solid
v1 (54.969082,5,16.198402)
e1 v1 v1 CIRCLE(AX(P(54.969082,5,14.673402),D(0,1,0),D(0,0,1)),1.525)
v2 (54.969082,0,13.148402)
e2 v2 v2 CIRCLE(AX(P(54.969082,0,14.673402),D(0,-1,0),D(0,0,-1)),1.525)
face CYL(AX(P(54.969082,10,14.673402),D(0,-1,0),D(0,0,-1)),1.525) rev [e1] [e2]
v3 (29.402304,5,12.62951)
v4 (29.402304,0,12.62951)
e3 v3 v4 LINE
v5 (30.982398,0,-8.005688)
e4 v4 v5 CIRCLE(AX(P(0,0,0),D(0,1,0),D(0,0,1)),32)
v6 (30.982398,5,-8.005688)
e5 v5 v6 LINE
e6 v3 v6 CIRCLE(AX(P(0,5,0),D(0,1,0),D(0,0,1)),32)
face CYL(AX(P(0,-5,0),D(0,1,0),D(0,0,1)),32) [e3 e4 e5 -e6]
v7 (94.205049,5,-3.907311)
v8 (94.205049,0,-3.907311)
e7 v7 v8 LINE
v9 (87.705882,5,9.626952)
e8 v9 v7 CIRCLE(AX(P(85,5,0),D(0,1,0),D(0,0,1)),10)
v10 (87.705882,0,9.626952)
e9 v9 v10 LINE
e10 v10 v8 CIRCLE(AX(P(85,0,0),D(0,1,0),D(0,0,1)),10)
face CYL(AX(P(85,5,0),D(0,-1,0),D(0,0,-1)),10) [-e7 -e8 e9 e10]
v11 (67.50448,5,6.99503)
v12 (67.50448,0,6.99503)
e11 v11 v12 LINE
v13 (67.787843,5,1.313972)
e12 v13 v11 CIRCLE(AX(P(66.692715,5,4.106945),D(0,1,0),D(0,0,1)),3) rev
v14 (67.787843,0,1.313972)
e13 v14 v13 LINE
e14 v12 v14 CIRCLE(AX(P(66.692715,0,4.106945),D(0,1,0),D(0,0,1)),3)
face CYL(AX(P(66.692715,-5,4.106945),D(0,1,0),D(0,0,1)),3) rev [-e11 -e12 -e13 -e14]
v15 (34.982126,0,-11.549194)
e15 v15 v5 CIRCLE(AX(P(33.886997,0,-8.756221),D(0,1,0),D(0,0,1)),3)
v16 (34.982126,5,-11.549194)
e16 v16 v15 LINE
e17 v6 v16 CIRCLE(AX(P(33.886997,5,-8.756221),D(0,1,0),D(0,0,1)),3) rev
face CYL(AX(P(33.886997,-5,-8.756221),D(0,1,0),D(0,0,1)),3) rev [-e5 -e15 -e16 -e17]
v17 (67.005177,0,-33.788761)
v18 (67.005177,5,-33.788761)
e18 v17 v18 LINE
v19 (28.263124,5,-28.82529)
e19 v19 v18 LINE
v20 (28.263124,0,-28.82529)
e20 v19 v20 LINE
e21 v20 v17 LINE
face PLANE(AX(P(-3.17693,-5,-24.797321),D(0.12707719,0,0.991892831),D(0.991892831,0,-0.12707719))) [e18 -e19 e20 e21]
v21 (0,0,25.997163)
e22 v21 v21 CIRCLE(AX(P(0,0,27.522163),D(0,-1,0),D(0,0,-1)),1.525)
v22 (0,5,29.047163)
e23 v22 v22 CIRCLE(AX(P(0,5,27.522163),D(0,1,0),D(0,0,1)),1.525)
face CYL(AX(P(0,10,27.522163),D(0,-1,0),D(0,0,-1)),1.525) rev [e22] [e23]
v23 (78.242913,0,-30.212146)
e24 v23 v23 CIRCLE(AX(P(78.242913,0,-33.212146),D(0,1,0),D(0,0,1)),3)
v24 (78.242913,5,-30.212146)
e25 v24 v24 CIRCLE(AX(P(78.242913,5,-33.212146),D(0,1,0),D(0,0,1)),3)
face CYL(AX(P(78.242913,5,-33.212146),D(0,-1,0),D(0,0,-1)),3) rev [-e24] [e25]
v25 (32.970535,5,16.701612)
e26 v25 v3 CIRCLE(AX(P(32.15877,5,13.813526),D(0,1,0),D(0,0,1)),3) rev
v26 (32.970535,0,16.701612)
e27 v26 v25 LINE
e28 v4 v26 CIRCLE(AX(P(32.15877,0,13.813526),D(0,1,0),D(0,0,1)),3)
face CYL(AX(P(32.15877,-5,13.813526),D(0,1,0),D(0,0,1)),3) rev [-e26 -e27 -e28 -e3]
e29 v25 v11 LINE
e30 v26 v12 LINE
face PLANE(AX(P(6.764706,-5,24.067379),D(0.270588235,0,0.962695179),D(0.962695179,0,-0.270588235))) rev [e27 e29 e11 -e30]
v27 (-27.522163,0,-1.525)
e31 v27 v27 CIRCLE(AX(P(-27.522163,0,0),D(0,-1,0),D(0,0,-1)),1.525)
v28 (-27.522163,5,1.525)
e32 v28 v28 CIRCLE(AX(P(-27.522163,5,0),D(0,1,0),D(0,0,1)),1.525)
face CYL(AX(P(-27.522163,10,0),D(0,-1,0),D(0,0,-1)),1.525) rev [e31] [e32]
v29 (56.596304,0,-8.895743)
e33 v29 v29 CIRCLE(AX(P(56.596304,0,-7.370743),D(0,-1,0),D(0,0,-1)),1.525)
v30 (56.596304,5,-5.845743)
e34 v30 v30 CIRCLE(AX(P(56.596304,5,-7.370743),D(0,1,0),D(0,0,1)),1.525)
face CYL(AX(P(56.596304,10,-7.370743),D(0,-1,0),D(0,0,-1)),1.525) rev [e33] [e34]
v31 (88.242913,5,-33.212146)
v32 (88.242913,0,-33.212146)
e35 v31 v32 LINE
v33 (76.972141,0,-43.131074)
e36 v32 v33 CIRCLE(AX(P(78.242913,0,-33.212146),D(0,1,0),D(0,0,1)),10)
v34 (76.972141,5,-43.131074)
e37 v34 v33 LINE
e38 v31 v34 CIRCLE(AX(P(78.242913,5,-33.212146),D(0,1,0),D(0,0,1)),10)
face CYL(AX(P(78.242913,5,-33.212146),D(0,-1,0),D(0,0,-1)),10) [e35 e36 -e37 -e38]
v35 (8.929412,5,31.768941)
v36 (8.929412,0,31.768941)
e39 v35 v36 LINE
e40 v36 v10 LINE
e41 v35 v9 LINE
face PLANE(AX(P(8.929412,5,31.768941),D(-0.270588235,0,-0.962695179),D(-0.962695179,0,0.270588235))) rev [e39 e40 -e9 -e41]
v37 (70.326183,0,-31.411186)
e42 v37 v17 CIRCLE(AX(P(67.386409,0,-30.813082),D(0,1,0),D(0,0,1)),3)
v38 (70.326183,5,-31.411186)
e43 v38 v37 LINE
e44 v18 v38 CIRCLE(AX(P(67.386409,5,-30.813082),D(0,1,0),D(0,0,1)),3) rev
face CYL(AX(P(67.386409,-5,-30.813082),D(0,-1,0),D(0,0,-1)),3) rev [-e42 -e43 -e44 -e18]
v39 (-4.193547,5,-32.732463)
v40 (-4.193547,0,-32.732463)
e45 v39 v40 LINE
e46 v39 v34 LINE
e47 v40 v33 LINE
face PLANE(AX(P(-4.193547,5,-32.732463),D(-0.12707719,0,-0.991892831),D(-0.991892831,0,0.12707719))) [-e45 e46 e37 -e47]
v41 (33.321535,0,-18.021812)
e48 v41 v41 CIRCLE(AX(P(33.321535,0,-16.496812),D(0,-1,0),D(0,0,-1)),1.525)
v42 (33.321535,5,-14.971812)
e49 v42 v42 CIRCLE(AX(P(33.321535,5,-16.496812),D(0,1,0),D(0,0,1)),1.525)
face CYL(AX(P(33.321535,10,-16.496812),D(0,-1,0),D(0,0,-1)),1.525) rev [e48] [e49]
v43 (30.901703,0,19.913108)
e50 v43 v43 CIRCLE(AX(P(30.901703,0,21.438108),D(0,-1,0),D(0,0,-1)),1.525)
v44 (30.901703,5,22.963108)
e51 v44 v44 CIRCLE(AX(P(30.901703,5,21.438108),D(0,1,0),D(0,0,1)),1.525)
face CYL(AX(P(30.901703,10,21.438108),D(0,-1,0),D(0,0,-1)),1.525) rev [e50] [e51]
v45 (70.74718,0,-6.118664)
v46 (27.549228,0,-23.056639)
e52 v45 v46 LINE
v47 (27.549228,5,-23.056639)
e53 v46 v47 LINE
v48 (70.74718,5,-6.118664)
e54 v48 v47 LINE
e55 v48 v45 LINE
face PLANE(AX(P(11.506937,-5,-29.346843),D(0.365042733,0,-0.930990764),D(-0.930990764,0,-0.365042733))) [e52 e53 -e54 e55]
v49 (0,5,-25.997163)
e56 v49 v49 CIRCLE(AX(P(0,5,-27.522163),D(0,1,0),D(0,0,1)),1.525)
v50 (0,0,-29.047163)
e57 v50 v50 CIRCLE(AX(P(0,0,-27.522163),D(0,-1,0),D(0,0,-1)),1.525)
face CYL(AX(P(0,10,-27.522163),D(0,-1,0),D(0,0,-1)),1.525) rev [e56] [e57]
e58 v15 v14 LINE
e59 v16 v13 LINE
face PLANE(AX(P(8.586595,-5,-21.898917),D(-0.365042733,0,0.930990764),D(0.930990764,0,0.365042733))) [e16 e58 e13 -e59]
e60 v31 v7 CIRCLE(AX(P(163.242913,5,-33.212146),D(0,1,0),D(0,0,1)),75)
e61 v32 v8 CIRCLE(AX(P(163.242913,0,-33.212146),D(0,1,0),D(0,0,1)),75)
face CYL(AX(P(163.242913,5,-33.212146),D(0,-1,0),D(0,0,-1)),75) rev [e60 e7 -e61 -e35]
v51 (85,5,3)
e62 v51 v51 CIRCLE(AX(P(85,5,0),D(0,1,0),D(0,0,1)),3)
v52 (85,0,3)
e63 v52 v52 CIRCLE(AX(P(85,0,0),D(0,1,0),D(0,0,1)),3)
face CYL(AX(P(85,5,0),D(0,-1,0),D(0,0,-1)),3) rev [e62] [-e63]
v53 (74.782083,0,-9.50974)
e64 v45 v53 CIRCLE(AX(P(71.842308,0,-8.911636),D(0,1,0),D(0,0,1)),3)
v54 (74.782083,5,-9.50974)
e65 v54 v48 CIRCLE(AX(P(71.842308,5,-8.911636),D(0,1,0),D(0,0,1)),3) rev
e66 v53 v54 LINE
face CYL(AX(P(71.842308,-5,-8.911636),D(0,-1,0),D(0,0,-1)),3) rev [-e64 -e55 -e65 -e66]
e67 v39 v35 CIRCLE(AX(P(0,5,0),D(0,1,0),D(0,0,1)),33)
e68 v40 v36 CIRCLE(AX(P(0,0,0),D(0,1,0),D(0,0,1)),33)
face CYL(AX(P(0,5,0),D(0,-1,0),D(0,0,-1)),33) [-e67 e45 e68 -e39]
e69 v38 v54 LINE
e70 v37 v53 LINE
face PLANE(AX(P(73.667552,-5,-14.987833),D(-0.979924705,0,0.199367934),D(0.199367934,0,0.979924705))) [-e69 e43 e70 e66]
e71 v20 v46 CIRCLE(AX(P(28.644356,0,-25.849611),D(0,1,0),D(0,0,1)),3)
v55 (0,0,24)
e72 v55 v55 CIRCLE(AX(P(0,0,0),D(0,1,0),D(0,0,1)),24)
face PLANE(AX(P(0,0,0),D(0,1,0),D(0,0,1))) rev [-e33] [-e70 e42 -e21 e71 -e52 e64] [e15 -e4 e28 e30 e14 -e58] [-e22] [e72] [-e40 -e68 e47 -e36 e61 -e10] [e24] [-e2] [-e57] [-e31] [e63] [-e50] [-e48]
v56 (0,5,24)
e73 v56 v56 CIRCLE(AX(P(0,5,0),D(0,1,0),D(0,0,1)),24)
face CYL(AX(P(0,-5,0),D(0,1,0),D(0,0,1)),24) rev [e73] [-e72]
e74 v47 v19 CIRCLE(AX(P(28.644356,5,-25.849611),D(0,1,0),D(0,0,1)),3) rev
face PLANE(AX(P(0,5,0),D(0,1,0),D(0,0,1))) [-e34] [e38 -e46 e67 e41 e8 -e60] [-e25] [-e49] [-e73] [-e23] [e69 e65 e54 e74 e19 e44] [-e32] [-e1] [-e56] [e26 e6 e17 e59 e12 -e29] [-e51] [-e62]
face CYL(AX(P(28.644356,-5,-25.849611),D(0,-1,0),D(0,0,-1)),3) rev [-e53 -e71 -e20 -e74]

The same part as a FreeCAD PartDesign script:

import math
import FreeCAD as App
import Part
import Sketcher
from FreeCAD import Vector
Q = App.Units.Quantity


def edges_at(feature, points):
    """Names of the edges that pass closest to the given points."""
    edges = feature.Shape.Edges
    near = lambda p: min(range(len(edges)), key=lambda i: edges[i].distToShape(Part.Vertex(*p))[0])
    return sorted({f"Edge{near(p) + 1}" for p in points})


def add_polygon(sketch, points):
    """Adds a closed chain of lines whose ends are joined by coincident constraints."""
    first, n = sketch.GeometryCount, len(points)
    for a, b in zip(points, points[1:] + points[:1]):
        sketch.addGeometry(Part.LineSegment(App.Vector(*a, 0), App.Vector(*b, 0)), False)
    for i in range(n):
        sketch.addConstraint(Sketcher.Constraint("Coincident", first + i, 2, first + (i + 1) % n, 1))

doc = App.newDocument("Part")
body = doc.addObject("PartDesign::Body", "Body")

sketch1 = doc.addObject("Sketcher::SketchObject", "Sketch")
body.addObject(sketch1)
sketch1.AttachmentSupport = (doc.XZ_Plane, [""])
sketch1.MapMode = "FlatFace"
sketch1.addGeometry(Part.LineSegment(Vector(76.972141, -43.131074, 0), Vector(-4.193547, -32.732463, 0)), False)
sketch1.addGeometry(Part.ArcOfCircle(Part.Circle(Vector(0, 0, 0), Vector(0, 0, 1), 33), math.radians(74.300727), math.radians(262.699273)), False)
sketch1.addGeometry(Part.LineSegment(Vector(8.929412, 31.768941, 0), Vector(87.705882, 9.626952, 0)), False)
sketch1.addGeometry(Part.ArcOfCircle(Part.Circle(Vector(85, 0, 0), Vector(0, 0, 1), 10), math.radians(-22.999994), math.radians(74.300727)), False)
sketch1.addGeometry(Part.ArcOfCircle(Part.Circle(Vector(163.242913, -33.212146, 0), Vector(0, 0, 1), 75), math.radians(156.999999), math.radians(180)), False)
sketch1.addGeometry(Part.ArcOfCircle(Part.Circle(Vector(78.242913, -33.212146, 0), Vector(0, 0, 1), 10), math.radians(-97.300727), math.radians(0)), False)
sketch1.addGeometry(Part.Circle(Vector(-8.75, 15.155445, 0), Vector(0, 0, 1), 2.025), False)
sketch1.addGeometry(Part.Circle(Vector(0, 17.5, 0), Vector(0, 0, 1), 2.025), False)
sketch1.addGeometry(Part.Circle(Vector(-15.155445, 8.75, 0), Vector(0, 0, 1), 2.025), False)
sketch1.addGeometry(Part.Circle(Vector(8.75, 15.155445, 0), Vector(0, 0, 1), 2.025), False)
sketch1.addGeometry(Part.Circle(Vector(15.155445, 8.75, 0), Vector(0, 0, 1), 2.025), False)
sketch1.addGeometry(Part.Circle(Vector(-17.5, 0, 0), Vector(0, 0, 1), 2.025), False)
sketch1.addGeometry(Part.Circle(Vector(0, 0, 0), Vector(0, 0, 1), 13.1), False)
sketch1.addGeometry(Part.Circle(Vector(17.5, 0, 0), Vector(0, 0, 1), 2.025), False)
sketch1.addGeometry(Part.Circle(Vector(85, 0, 0), Vector(0, 0, 1), 3), False)
sketch1.addGeometry(Part.Circle(Vector(-15.155445, -8.75, 0), Vector(0, 0, 1), 2.025), False)
sketch1.addGeometry(Part.Circle(Vector(-8.75, -15.155445, 0), Vector(0, 0, 1), 2.025), False)
sketch1.addGeometry(Part.Circle(Vector(0, -17.5, 0), Vector(0, 0, 1), 2.025), False)
sketch1.addGeometry(Part.Circle(Vector(15.155445, -8.75, 0), Vector(0, 0, 1), 2.025), False)
sketch1.addGeometry(Part.Circle(Vector(8.75, -15.155445, 0), Vector(0, 0, 1), 2.025), False)
sketch1.addGeometry(Part.Circle(Vector(78.242913, -33.212146, 0), Vector(0, 0, 1), 3), False)
sketch1.addConstraint(Sketcher.Constraint("Tangent", 0, 2, 1, 2))
sketch1.addConstraint(Sketcher.Constraint("Tangent", 1, 1, 2, 1))
sketch1.addConstraint(Sketcher.Constraint("Tangent", 2, 2, 3, 2))
sketch1.addConstraint(Sketcher.Constraint("Tangent", 3, 1, 4, 1))
sketch1.addConstraint(Sketcher.Constraint("Tangent", 4, 2, 5, 2))
sketch1.addConstraint(Sketcher.Constraint("Tangent", 5, 1, 0, 1))
sketch1.addConstraint(Sketcher.Constraint("Coincident", 1, 3, -1, 1))
sketch1.addConstraint(Sketcher.Constraint("Coincident", 12, 3, -1, 1))
sketch1.addConstraint(Sketcher.Constraint("Coincident", 14, 3, 3, 3))
sketch1.addConstraint(Sketcher.Constraint("Coincident", 20, 3, 5, 3))
sketch1.addConstraint(Sketcher.Constraint("Equal", 3, 5))
sketch1.addConstraint(Sketcher.Constraint("Equal", 6, 7))
sketch1.addConstraint(Sketcher.Constraint("Equal", 7, 8))
sketch1.addConstraint(Sketcher.Constraint("Equal", 8, 9))
sketch1.addConstraint(Sketcher.Constraint("Equal", 9, 10))
sketch1.addConstraint(Sketcher.Constraint("Equal", 10, 11))
sketch1.addConstraint(Sketcher.Constraint("Equal", 11, 13))
sketch1.addConstraint(Sketcher.Constraint("Equal", 13, 15))
sketch1.addConstraint(Sketcher.Constraint("Equal", 15, 16))
sketch1.addConstraint(Sketcher.Constraint("Equal", 16, 17))
sketch1.addConstraint(Sketcher.Constraint("Equal", 17, 18))
sketch1.addConstraint(Sketcher.Constraint("Equal", 18, 19))
sketch1.addConstraint(Sketcher.Constraint("Equal", 14, 20))
sketch1.addConstraint(Sketcher.Constraint("Symmetric", 11, 3, 13, 3, -1, 1))
sketch1.addConstraint(Sketcher.Constraint("Symmetric", 10, 3, 15, 3, -1, 1))
sketch1.addConstraint(Sketcher.Constraint("Symmetric", 9, 3, 16, 3, -1, 1))
sketch1.addConstraint(Sketcher.Constraint("Symmetric", 7, 3, 17, 3, -1, 1))
sketch1.addConstraint(Sketcher.Constraint("Symmetric", 8, 3, 18, 3, -1, 1))
sketch1.addConstraint(Sketcher.Constraint("Symmetric", 6, 3, 19, 3, -1, 1))
sketch1.addConstraint(Sketcher.Constraint("Symmetric", 6, 3, 9, 3, -2))
sketch1.addConstraint(Sketcher.Constraint("Symmetric", 8, 3, 10, 3, -2))
sketch1.addConstraint(Sketcher.Constraint("PointOnObject", 3, 3, -1))
sketch1.addConstraint(Sketcher.Constraint("PointOnObject", 7, 3, -2))
sketch1.addConstraint(Sketcher.Constraint("PointOnObject", 11, 3, -1))
sketch1.addConstraint(Sketcher.Constraint("Horizontal", 4, 3, 5, 3))
sketch1.addConstraint(Sketcher.Constraint("Equal", 0, 2))
sketch1.addConstraint(Sketcher.Constraint("Diameter", 14, 6.0))
sketch1.addConstraint(Sketcher.Constraint("Radius", 1, 33.0))
sketch1.addConstraint(Sketcher.Constraint("Radius", 3, 10.0))
sketch1.addConstraint(Sketcher.Constraint("Radius", 4, 75.0))
sketch1.addConstraint(Sketcher.Constraint("Diameter", 12, 26.2))
sketch1.addConstraint(Sketcher.Constraint("Diameter", 6, 4.05))
sketch1.addConstraint(Sketcher.Constraint("DistanceY", -1, 1, 7, 3, 17.5))
sketch1.addConstraint(Sketcher.Constraint("DistanceX", 11, 3, -1, 1, 17.5))
sketch1.addConstraint(Sketcher.Constraint("DistanceX", 6, 3, 9, 3, 17.5))
sketch1.addConstraint(Sketcher.Constraint("DistanceY", 15, 3, 8, 3, 17.5))
sketch1.addConstraint(Sketcher.Constraint("DistanceX", -1, 1, 3, 1, 94.205049))
sketch1.addConstraint(Sketcher.Constraint("DistanceY", 5, 3, 6, 3, 48.36759))
sketch1.addConstraint(Sketcher.Constraint("DistanceX", 8, 3, 10, 3, 30.310889))
pad1 = doc.addObject("PartDesign::Pad", "Pad")
body.addObject(pad1)
pad1.Profile = sketch1
pad1.Length = 5
pad1.Reversed = True

sketch2 = doc.addObject("Sketcher::SketchObject", "Sketch001")
body.addObject(sketch2)
sketch2.AttachmentSupport = (doc.XZ_Plane, [""])
sketch2.MapMode = "FlatFace"
sketch2.AttachmentOffset = App.Placement(Vector(0, 0, -5), App.Rotation())
sketch2.addGeometry(Part.Circle(Vector(0, 0, 0), Vector(0, 0, 1), 24), False)
sketch2.addConstraint(Sketcher.Constraint("Coincident", 0, 3, -1, 1))
sketch2.addConstraint(Sketcher.Constraint("Diameter", 0, 48.0))
pocket1 = doc.addObject("PartDesign::Pocket", "Pocket")
body.addObject(pocket1)
pocket1.Profile = sketch2
pocket1.Length = 10
pocket1.Reversed = True

sketch3 = doc.addObject("Sketcher::SketchObject", "Sketch002")
body.addObject(sketch3)
sketch3.AttachmentSupport = (doc.XZ_Plane, [""])
sketch3.MapMode = "FlatFace"
sketch3.AttachmentOffset = App.Placement(Vector(0, 0, -5), App.Rotation())
add_polygon(sketch3, [(75.881597, -4.105452), (69.770384, -34.143028), (16.636114, -27.335686)])
sketch3.addGeometry(Part.ArcOfCircle(Part.Circle(Vector(0, 0, 0), Vector(0, 0, 1), 32), math.radians(0), math.radians(35.675894)), False)
sketch3.addGeometry(Part.LineSegment(Vector(25.994527, 18.662384, 0), Vector(76.108729, 4.576603, 0)), False)
sketch3.addGeometry(Part.LineSegment(Vector(76.108729, 4.576603, 0), Vector(28.785186, -13.979022, 0)), False)
sketch3.addGeometry(Part.ArcOfCircle(Part.Circle(Vector(0, 0, 0), Vector(0, 0, 1), 32), math.radians(-25.902716), math.radians(0)), False)
sketch3.addConstraint(Sketcher.Constraint("Coincident", 3, 2, 4, 1))
sketch3.addConstraint(Sketcher.Constraint("Coincident", 4, 2, 5, 1))
sketch3.addConstraint(Sketcher.Constraint("Coincident", 5, 2, 6, 1))
sketch3.addConstraint(Sketcher.Constraint("Tangent", 6, 2, 3, 1))
sketch3.addConstraint(Sketcher.Constraint("Coincident", 3, 3, -1, 1))
sketch3.addConstraint(Sketcher.Constraint("Equal", 3, 6))
sketch3.addConstraint(Sketcher.Constraint("PointOnObject", 6, 2, -1))
sketch3.addConstraint(Sketcher.Constraint("Parallel", 2, 5))
sketch3.addConstraint(Sketcher.Constraint("Radius", 3, 32.0))
sketch3.addConstraint(Sketcher.Constraint("Angle", 0, Q("-101.5 deg")))
sketch3.addConstraint(Sketcher.Constraint("DistanceX", 3, 2, 4, 2, 50.114202))
sketch3.addConstraint(Sketcher.Constraint("Distance", 1, 53.568559))
sketch3.addConstraint(Sketcher.Constraint("DistanceY", 2, 2, -1, 1, 4.105452))
sketch3.addConstraint(Sketcher.Constraint("DistanceX", -1, 1, 4, 2, 76.108729))
sketch3.addConstraint(Sketcher.Constraint("DistanceY", 5, 2, -1, 1, 13.979022))
sketch3.addConstraint(Sketcher.Constraint("DistanceX", 1, 2, 0, 2, 53.13427))
sketch3.addConstraint(Sketcher.Constraint("DistanceY", 1, 2, 3, 2, 45.998069))
sketch3.addConstraint(Sketcher.Constraint("DistanceX", 3, 2, 2, 2, 49.88707))
pocket2 = doc.addObject("PartDesign::Pocket", "Pocket001")
body.addObject(pocket2)
pocket2.Profile = sketch3
pocket2.Length = 10
pocket2.Reversed = True
doc.recompute()

fillet = doc.addObject("PartDesign::Fillet", "Fillet")
body.addObject(fillet)
fillet.Base = (pocket2, edges_at(pocket2, [
    (25.995, 2.5, 18.662),
    (28.785, 2.5, -13.979),
    (76.109, 2.5, 4.577),
    (69.77, 2.5, -34.143),
    (75.882, 2.5, -4.105),
    (16.636, 2.5, -27.336),
]))
fillet.Radius = 3

sketch4 = doc.addObject("Sketcher::SketchObject", "Sketch003")
body.addObject(sketch4)
sketch4.AttachmentSupport = (doc.XZ_Plane, [""])
sketch4.MapMode = "FlatFace"
sketch4.addGeometry(Part.Circle(Vector(0, -27.522163, 0), Vector(0, 0, 1), 1.525), False)
sketch4.addGeometry(Part.Circle(Vector(33.321535, -16.496812, 0), Vector(0, 0, 1), 1.525), False)
sketch4.addGeometry(Part.Circle(Vector(-27.522163, 0, 0), Vector(0, 0, 1), 1.525), False)
sketch4.addGeometry(Part.Circle(Vector(0, 27.522163, 0), Vector(0, 0, 1), 1.525), False)
sketch4.addGeometry(Part.Circle(Vector(30.901703, 21.438108, 0), Vector(0, 0, 1), 1.525), False)
sketch4.addGeometry(Part.Circle(Vector(56.596304, -7.370743, 0), Vector(0, 0, 1), 1.525), False)
sketch4.addGeometry(Part.Circle(Vector(54.969082, 14.673402, 0), Vector(0, 0, 1), 1.525), False)
sketch4.addConstraint(Sketcher.Constraint("Equal", 0, 1))
sketch4.addConstraint(Sketcher.Constraint("Equal", 1, 2))
sketch4.addConstraint(Sketcher.Constraint("Equal", 2, 3))
sketch4.addConstraint(Sketcher.Constraint("Equal", 3, 4))
sketch4.addConstraint(Sketcher.Constraint("Equal", 4, 5))
sketch4.addConstraint(Sketcher.Constraint("Equal", 5, 6))
sketch4.addConstraint(Sketcher.Constraint("Symmetric", 0, 3, 3, 3, -1, 1))
sketch4.addConstraint(Sketcher.Constraint("PointOnObject", 0, 3, -2))
sketch4.addConstraint(Sketcher.Constraint("PointOnObject", 2, 3, -1))
sketch4.addConstraint(Sketcher.Constraint("Diameter", 0, 3.05))
sketch4.addConstraint(Sketcher.Constraint("DistanceY", -1, 1, 6, 3, 14.673402))
sketch4.addConstraint(Sketcher.Constraint("DistanceX", 2, 3, 1, 3, 60.843698))
sketch4.addConstraint(Sketcher.Constraint("DistanceX", 4, 3, 5, 3, 25.694601))
sketch4.addConstraint(Sketcher.Constraint("DistanceY", 1, 3, -1, 1, 16.496812))
sketch4.addConstraint(Sketcher.Constraint("DistanceX", -1, 1, 6, 3, 54.969082))
sketch4.addConstraint(Sketcher.Constraint("DistanceY", 0, 3, 1, 3, 11.025352))
sketch4.addConstraint(Sketcher.Constraint("DistanceY", 1, 3, 4, 3, 37.934919))
sketch4.addConstraint(Sketcher.Constraint("DistanceX", 1, 3, 5, 3, 23.274769))
sketch4.addConstraint(Sketcher.Constraint("DistanceY", 1, 3, 5, 3, 9.126068))
sketch4.addConstraint(Sketcher.Constraint("DistanceX", 6, 3, 5, 3, 1.627222))
pocket3 = doc.addObject("PartDesign::Pocket", "Pocket002")
body.addObject(pocket3)
pocket3.Profile = sketch4
pocket3.Length = 10

doc.recompute()
